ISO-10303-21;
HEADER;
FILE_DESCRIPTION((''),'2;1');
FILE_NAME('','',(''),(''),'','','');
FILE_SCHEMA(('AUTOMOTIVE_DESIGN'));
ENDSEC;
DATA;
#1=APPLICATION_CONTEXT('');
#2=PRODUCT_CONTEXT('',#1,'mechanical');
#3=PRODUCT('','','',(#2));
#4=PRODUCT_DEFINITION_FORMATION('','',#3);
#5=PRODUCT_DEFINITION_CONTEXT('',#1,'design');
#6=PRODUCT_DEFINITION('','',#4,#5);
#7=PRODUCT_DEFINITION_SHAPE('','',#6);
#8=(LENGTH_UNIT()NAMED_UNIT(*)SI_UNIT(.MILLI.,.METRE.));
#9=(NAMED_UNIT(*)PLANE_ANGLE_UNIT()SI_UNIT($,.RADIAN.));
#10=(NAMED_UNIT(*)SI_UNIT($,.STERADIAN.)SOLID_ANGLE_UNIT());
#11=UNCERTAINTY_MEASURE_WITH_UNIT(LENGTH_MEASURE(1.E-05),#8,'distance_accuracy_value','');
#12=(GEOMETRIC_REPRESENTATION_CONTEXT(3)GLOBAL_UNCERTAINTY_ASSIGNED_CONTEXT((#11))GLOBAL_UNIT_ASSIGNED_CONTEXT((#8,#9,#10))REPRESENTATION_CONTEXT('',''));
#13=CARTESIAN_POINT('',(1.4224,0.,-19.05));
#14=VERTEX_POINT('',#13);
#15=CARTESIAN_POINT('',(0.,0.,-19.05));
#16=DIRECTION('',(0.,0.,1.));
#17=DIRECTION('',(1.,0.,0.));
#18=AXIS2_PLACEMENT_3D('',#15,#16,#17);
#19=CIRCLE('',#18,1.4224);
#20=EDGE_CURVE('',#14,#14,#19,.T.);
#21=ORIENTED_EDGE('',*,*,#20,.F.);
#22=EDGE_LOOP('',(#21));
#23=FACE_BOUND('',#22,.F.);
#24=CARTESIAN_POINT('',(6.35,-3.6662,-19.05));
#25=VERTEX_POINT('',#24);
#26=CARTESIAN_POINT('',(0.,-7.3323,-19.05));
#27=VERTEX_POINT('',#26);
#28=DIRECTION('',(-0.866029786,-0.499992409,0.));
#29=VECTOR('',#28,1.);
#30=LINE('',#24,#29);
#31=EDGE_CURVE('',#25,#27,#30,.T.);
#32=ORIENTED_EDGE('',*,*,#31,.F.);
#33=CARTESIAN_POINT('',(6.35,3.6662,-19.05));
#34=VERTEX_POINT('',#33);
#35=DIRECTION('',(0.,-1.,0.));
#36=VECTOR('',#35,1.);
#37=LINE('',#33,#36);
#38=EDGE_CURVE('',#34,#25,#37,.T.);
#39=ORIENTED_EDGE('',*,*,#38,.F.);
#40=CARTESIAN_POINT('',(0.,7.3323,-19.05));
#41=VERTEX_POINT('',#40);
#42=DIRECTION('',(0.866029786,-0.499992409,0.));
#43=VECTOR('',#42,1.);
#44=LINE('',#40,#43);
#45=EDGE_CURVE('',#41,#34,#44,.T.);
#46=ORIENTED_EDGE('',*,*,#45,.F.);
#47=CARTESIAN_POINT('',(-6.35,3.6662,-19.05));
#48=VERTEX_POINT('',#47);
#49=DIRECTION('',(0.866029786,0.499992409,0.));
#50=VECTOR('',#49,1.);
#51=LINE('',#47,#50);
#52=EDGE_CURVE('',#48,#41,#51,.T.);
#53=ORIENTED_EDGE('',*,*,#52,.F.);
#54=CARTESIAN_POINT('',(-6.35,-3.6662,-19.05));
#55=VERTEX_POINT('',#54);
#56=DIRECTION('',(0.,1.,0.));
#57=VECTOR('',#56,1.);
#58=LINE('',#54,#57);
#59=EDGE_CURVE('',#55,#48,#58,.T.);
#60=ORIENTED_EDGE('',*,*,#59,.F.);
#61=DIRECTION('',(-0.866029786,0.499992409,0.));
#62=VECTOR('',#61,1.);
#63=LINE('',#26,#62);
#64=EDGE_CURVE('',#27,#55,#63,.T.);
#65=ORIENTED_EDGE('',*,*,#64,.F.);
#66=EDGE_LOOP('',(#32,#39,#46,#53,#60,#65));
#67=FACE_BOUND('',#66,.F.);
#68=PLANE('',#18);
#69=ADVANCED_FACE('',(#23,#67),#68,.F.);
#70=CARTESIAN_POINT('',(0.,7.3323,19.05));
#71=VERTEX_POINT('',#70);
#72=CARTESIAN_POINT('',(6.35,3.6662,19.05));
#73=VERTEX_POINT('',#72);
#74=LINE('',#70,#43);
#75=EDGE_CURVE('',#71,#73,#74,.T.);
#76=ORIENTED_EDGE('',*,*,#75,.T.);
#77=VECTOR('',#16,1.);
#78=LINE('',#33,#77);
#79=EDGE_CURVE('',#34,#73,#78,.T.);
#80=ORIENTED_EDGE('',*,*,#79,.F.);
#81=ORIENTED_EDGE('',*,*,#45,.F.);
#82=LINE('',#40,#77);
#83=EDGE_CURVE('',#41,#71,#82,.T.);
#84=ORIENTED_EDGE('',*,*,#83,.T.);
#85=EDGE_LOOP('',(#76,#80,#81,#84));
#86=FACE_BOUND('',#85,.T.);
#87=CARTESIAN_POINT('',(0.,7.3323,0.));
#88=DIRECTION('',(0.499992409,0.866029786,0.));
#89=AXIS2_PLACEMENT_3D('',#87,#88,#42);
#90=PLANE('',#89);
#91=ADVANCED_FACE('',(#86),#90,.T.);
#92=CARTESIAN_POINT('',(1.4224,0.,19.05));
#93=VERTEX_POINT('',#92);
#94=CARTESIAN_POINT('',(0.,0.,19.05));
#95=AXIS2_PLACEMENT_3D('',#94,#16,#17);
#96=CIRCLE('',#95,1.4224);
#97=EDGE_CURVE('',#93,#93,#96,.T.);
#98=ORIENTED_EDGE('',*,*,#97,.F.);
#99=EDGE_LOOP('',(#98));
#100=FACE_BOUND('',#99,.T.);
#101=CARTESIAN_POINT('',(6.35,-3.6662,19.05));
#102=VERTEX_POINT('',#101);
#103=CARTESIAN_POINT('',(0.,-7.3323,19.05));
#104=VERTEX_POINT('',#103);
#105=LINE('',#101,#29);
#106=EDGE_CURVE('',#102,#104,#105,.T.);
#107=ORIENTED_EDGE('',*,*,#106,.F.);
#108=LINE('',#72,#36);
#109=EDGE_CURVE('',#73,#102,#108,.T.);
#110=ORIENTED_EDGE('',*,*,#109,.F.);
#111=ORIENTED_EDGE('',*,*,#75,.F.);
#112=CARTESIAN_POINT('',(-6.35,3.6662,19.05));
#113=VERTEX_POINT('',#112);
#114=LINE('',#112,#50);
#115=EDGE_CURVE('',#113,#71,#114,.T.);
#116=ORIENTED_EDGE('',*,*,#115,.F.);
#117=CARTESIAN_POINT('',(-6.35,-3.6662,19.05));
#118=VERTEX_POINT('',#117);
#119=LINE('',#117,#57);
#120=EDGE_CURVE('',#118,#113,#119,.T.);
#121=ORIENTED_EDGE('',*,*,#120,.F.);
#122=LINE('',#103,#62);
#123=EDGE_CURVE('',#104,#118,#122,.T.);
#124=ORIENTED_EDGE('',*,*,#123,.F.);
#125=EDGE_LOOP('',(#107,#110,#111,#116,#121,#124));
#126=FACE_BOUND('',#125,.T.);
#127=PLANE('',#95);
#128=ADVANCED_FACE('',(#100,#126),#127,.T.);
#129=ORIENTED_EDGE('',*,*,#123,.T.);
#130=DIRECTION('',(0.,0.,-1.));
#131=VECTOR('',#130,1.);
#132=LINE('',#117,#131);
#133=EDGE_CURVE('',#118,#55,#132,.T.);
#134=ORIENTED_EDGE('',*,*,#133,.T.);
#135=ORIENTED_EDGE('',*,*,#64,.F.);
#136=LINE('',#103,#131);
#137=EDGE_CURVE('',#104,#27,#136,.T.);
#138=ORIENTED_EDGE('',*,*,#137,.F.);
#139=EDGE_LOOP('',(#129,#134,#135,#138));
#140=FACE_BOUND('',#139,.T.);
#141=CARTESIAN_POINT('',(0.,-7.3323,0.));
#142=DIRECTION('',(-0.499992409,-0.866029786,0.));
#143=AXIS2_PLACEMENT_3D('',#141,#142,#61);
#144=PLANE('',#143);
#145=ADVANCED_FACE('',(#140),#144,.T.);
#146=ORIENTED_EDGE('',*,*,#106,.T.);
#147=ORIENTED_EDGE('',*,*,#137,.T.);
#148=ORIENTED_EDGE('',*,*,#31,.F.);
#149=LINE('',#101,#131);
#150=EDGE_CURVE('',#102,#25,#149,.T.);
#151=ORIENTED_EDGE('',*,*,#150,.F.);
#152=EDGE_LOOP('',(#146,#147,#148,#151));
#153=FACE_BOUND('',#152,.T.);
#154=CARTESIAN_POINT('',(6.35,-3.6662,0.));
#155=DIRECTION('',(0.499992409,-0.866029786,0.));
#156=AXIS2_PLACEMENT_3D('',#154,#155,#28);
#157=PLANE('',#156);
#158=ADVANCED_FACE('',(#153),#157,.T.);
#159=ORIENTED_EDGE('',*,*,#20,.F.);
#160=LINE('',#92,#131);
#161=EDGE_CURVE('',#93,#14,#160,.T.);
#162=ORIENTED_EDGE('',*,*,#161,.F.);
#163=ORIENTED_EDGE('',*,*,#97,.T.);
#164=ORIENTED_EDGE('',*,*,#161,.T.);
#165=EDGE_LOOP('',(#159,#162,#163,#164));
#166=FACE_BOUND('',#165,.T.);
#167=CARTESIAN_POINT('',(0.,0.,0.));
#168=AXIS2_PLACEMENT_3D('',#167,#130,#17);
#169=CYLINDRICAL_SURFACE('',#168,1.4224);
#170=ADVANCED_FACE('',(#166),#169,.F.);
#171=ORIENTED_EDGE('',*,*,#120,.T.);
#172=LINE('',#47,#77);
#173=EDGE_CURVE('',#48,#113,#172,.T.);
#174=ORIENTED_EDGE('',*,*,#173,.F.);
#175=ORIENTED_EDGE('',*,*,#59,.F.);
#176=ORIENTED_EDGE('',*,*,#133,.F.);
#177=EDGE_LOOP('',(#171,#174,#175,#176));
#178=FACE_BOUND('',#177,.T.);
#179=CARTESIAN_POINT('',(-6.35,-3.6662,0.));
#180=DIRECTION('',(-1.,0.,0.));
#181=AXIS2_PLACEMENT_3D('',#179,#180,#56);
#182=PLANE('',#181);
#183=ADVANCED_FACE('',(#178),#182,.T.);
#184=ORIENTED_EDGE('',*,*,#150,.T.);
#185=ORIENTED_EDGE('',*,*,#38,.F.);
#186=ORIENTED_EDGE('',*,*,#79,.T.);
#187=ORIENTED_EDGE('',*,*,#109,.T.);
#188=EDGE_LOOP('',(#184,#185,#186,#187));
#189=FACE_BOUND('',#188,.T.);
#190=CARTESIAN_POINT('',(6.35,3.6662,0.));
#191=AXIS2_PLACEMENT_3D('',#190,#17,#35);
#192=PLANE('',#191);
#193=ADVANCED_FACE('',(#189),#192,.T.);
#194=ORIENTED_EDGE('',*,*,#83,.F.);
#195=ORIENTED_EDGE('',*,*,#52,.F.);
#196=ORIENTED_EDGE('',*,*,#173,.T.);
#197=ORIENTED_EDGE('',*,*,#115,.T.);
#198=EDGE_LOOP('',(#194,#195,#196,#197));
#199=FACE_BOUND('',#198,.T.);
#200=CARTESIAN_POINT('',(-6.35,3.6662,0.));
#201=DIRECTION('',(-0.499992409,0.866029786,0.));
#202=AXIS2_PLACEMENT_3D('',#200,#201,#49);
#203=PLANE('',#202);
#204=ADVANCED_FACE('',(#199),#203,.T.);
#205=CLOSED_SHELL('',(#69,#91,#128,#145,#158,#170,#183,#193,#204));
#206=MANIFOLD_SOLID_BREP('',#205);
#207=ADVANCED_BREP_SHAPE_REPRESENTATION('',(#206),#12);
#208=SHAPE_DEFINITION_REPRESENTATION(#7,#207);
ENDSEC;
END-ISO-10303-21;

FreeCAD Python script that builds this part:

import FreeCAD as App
import Part
import Sketcher

V = App.Vector
Q = App.Units.Quantity

doc = App.newDocument("Part")
body = doc.addObject("PartDesign::Body", "Body")

# Sketch on XY plane
sketch1 = body.newObject("Sketcher::SketchObject", "Sketch")
sketch1.AttachmentSupport = (doc.getObject("XY_Plane"), [""])
sketch1.MapMode = "FlatFace"
sketch1.addGeometry([
    Part.LineSegment(V(6.35, -3.6662, 0), V(6.35, 3.6662, 0)),  # 0
    Part.LineSegment(V(6.35, 3.6662, 0), V(0, 7.3323, 0)),  # 1
    Part.LineSegment(V(0, 7.3323, 0), V(-6.35, 3.6662, 0)),  # 2
    Part.LineSegment(V(-6.35, 3.6662, 0), V(-6.35, -3.6662, 0)),  # 3
    Part.LineSegment(V(-6.35, -3.6662, 0), V(0, -7.3323, 0)),  # 4
    Part.LineSegment(V(0, -7.3323, 0), V(6.35, -3.6662, 0)),  # 5
    Part.Circle(V(0, 0, 0), V(0, 0, 1), 1.4224),  # 6
], False)
sketch1.addConstraint([
    Sketcher.Constraint("Coincident", 0, 2, 1, 1),
    Sketcher.Constraint("Coincident", 1, 2, 2, 1),
    Sketcher.Constraint("Coincident", 2, 2, 3, 1),
    Sketcher.Constraint("Coincident", 3, 2, 4, 1),
    Sketcher.Constraint("Coincident", 4, 2, 5, 1),
    Sketcher.Constraint("Coincident", 5, 2, 0, 1),
    Sketcher.Constraint("Vertical", 0),
    Sketcher.Constraint("Vertical", 3),
    Sketcher.Constraint("Coincident", 6, 3, -1, 1),
    Sketcher.Constraint("Symmetric", 0, 2, 3, 2, -1, 1),
    Sketcher.Constraint("Symmetric", 1, 2, 4, 2, -1, 1),
    Sketcher.Constraint("PointOnObject", 1, 2, -2),
    Sketcher.Constraint("Parallel", 2, 5),
    Sketcher.Constraint("Horizontal", 0, 2, 2, 2),
    Sketcher.Constraint("Diameter", 6, Q("0.112 in")),
    Sketcher.Constraint("DistanceX", 2, 2, 0, 2, Q("0.5 in")),
    Sketcher.Constraint("Angle", 1, Q("150.0005 deg")),
    Sketcher.Constraint("DistanceY", 3, 2, 1, 2, Q("0.433 in")),
])
pad1 = body.newObject("PartDesign::Pad", "Pad")
pad1.Profile = sketch1
pad1.Length = Q("1.5 in")
pad1.Midplane = True

doc.recompute()
